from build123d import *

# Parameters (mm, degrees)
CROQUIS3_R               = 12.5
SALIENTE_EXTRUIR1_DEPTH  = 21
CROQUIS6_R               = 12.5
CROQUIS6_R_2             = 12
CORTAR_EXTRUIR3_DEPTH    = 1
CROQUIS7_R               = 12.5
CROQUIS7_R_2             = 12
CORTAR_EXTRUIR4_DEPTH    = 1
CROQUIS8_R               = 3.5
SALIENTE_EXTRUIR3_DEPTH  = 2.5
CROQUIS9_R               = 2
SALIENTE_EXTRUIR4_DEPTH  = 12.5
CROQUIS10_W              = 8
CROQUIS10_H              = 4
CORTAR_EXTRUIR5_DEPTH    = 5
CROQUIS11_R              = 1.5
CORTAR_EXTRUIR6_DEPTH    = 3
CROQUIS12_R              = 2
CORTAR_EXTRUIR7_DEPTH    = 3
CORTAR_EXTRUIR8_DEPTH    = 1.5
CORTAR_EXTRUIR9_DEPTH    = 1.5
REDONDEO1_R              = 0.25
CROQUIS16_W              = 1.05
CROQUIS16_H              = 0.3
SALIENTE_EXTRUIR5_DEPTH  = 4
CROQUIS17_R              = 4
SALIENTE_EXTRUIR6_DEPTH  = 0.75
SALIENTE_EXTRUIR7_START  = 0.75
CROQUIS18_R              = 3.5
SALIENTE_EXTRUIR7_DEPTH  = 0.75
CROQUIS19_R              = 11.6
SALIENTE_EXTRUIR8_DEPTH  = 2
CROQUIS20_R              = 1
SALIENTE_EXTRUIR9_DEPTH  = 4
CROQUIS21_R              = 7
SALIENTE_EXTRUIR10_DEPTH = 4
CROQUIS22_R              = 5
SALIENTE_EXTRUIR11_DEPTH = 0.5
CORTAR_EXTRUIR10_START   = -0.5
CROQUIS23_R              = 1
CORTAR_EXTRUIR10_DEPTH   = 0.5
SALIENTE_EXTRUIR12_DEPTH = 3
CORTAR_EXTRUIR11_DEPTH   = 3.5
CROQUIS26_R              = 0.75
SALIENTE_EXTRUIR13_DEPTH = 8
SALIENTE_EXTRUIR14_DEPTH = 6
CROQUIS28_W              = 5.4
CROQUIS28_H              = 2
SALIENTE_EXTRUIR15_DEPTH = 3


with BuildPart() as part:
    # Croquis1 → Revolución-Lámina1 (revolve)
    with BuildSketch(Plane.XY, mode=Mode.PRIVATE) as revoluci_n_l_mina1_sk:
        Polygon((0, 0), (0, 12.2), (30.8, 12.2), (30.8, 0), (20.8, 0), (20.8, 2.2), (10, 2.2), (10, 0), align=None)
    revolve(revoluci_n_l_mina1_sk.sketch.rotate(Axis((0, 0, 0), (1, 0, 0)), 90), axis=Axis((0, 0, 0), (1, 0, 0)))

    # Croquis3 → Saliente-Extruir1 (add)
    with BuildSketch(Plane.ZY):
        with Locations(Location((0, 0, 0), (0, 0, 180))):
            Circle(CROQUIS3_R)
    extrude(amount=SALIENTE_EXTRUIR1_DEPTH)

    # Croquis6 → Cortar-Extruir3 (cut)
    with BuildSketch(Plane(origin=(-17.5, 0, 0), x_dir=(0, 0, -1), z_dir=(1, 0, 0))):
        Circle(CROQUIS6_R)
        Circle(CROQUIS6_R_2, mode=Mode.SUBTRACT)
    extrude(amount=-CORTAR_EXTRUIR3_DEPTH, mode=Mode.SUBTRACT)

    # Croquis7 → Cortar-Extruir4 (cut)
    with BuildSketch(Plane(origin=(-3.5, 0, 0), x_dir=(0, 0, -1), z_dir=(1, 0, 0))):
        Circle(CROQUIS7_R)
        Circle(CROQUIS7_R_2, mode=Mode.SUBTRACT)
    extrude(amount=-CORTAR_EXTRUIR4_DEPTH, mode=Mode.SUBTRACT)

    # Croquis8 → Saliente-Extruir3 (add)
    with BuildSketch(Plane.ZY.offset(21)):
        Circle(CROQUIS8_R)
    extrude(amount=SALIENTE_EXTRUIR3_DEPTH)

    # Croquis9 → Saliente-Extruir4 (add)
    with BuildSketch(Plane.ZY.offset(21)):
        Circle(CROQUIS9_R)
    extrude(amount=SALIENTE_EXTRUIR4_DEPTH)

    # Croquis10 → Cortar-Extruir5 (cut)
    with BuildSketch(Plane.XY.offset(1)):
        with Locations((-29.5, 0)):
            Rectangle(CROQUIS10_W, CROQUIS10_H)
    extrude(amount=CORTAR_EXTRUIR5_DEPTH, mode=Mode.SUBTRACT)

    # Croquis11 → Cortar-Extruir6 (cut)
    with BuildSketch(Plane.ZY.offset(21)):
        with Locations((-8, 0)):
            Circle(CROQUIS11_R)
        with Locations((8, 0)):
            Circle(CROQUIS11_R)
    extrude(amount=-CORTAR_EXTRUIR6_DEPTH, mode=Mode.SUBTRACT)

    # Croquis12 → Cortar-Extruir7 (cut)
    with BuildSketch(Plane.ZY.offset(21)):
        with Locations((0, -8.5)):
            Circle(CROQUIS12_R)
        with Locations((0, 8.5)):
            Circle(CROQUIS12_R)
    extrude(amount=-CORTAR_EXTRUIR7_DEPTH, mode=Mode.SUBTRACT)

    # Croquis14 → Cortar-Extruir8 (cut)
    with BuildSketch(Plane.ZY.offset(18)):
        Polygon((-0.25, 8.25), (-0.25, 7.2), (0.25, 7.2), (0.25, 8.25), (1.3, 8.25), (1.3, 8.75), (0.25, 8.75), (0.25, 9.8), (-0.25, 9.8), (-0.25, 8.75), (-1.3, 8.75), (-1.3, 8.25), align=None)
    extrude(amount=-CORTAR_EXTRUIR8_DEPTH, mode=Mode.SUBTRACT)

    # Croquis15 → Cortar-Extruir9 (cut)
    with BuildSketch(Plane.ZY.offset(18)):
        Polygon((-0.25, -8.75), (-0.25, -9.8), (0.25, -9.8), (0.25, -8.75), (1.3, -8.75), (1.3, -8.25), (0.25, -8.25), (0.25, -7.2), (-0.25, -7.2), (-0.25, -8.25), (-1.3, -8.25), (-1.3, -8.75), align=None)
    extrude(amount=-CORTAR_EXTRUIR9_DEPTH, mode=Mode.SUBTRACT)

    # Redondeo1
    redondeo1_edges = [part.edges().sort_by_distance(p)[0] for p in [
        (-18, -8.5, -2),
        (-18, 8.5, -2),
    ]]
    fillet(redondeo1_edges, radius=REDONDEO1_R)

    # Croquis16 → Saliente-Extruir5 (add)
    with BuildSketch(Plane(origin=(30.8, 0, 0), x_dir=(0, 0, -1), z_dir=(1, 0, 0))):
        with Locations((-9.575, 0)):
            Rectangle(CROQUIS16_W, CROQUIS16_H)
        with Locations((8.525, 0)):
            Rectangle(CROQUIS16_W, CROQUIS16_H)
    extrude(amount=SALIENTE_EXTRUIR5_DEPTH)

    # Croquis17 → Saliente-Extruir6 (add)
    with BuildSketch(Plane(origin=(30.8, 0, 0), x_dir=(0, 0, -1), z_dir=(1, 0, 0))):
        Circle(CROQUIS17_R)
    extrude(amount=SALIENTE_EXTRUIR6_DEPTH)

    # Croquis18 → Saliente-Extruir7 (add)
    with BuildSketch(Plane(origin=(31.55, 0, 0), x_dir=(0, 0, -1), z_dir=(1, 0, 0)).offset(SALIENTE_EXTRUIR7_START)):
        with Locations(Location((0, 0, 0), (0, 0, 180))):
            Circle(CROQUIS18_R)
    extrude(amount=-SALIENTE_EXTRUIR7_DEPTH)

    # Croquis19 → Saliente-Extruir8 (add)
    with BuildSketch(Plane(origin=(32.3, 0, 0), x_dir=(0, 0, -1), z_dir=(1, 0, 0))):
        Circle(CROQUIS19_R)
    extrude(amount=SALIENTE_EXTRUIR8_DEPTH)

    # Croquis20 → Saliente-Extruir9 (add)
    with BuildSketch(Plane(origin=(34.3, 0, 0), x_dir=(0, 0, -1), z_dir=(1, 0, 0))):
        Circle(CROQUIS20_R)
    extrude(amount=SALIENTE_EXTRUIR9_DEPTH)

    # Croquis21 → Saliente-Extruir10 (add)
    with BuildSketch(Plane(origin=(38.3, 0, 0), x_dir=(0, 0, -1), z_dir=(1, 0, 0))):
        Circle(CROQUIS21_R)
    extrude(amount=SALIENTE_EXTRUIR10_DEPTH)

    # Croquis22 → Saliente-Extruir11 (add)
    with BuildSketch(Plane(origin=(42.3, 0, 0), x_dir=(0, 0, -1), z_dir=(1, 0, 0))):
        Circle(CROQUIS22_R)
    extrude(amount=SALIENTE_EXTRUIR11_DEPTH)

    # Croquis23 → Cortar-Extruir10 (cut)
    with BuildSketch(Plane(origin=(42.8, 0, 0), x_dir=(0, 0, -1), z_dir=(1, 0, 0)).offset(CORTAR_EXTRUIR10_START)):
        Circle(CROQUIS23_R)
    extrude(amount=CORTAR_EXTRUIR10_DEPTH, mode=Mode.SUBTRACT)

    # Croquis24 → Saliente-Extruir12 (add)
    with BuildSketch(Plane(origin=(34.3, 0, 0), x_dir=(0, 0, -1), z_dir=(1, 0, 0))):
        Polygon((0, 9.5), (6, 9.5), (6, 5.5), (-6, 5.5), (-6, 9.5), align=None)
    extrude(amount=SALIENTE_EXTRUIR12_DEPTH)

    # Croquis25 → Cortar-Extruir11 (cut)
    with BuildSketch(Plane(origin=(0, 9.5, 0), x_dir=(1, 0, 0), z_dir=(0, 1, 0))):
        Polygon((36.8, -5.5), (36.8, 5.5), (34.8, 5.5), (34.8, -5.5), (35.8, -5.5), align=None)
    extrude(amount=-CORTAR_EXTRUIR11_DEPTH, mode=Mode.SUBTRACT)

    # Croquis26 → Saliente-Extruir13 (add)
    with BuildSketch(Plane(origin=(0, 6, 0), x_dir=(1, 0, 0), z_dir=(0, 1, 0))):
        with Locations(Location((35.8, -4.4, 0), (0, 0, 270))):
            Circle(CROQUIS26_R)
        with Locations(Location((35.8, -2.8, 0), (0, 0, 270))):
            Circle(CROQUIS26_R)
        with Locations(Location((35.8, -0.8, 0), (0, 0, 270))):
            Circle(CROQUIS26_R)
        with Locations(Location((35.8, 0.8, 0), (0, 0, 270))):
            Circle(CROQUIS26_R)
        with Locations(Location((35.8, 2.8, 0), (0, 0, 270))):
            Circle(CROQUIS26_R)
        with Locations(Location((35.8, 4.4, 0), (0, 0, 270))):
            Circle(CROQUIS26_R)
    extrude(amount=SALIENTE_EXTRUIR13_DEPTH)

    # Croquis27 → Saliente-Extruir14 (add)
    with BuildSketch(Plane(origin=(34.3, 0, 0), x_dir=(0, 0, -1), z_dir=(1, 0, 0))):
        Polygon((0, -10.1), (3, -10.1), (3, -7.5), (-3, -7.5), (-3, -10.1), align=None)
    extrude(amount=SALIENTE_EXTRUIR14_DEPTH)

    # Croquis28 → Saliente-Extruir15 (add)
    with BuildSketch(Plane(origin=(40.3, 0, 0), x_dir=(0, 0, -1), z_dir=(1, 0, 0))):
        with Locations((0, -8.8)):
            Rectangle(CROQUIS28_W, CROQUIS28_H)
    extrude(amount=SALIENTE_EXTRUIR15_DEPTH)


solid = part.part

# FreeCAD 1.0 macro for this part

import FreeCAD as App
import Part
import Sketcher


def edges_at(feature, points):
    """Names of the edges that pass closest to the given points."""
    edges = feature.Shape.Edges
    near = lambda p: min(range(len(edges)), key=lambda i: edges[i].distToShape(Part.Vertex(*p))[0])
    return sorted({f"Edge{near(p) + 1}" for p in points})

doc = App.newDocument("Part")
params = doc.addObject("Spreadsheet::Sheet", "Params")
for row, (alias, value) in enumerate([
    ("sketch1_width", "10 mm"),
    ("sketch1_width2", "10.8 mm"),
    ("sketch1_height", "12.2 mm"),
    ("sketch1_height2", "2.2 mm"),
    ("revolution_angle", "360 deg"),
    ("sketch2_diameter", "25 mm"),
    ("pad1_length", "21 mm"),
    ("sketch3_diameter", "25 mm"),
    ("sketch3_diameter2", "24 mm"),
    ("pocket1_length", "1 mm"),
    ("sketch4_diameter", "25 mm"),
    ("sketch4_diameter2", "24 mm"),
    ("pocket2_length", "1 mm"),
    ("sketch5_diameter", "7 mm"),
    ("pad2_length", "2.5 mm"),
    ("sketch6_diameter", "4 mm"),
    ("pad3_length", "12.5 mm"),
    ("sketch7_width", "8 mm"),
    ("sketch7_height", "4 mm"),
    ("pocket3_length", "5 mm"),
    ("sketch8_diameter", "3 mm"),
    ("pocket4_length", "3 mm"),
    ("sketch9_diameter", "4 mm"),
    ("pocket5_length", "3 mm"),
    ("sketch10_width", "0.5 mm"),
    ("sketch10_width2", "1.05 mm"),
    ("pocket6_length", "1.5 mm"),
    ("sketch11_width", "0.5 mm"),
    ("sketch11_width2", "1.05 mm"),
    ("pocket7_length", "1.5 mm"),
    ("fillet_radius", "0.25 mm"),
    ("sketch12_width", "0.3 mm"),
    ("sketch12_height", "1.05 mm"),
    ("pad4_length", "4 mm"),
    ("sketch13_diameter", "8 mm"),
    ("pad5_length", "0.75 mm"),
    ("sketch14_diameter", "7 mm"),
    ("pad6_length", "0.75 mm"),
    ("sketch15_diameter", "23.2 mm"),
    ("pad7_length", "2 mm"),
    ("sketch16_diameter", "2 mm"),
    ("pad8_length", "4 mm"),
    ("sketch17_diameter", "14 mm"),
    ("pad9_length", "4 mm"),
    ("sketch18_diameter", "10 mm"),
    ("pad10_length", "0.5 mm"),
    ("sketch19_diameter", "2 mm"),
    ("pocket8_length", "0.5 mm"),
    ("sketch20_width", "4 mm"),
    ("sketch20_height", "12 mm"),
    ("pad11_length", "3 mm"),
    ("sketch21_width", "2 mm"),
    ("sketch21_height", "11 mm"),
    ("pocket9_length", "3.5 mm"),
    ("sketch22_diameter", "1.5 mm"),
    ("pad12_length", "8 mm"),
    ("sketch23_height", "6 mm"),
    ("sketch23_width", "2.6 mm"),
    ("pad13_length", "6 mm"),
    ("sketch24_width", "2 mm"),
    ("sketch24_height", "5.4 mm"),
    ("pad14_length", "3 mm"),
], start=1):
    params.set(f"A{row}", alias)
    params.set(f"B{row}", "=" + value)
    params.setAlias(f"B{row}", alias)

body = doc.addObject("PartDesign::Body", "Body")

sketch1 = body.newObject("Sketcher::SketchObject", "Sketch")
sketch1.AttachmentSupport = (doc.getObject("XY_Plane"), [""])
sketch1.MapMode = "FlatFace"
sketch1.addGeometry([
    Part.LineSegment(App.Vector(0, 12.2, 0), App.Vector(0, 0, 0)),
    Part.LineSegment(App.Vector(0, 0, 0), App.Vector(10, 0, 0)),
    Part.LineSegment(App.Vector(10, 0, 0), App.Vector(10, 2.2, 0)),
    Part.LineSegment(App.Vector(10, 2.2, 0), App.Vector(20.8, 2.2, 0)),
    Part.LineSegment(App.Vector(20.8, 2.2, 0), App.Vector(20.8, 0, 0)),
    Part.LineSegment(App.Vector(20.8, 0, 0), App.Vector(30.8, 0, 0)),
    Part.LineSegment(App.Vector(30.8, 0, 0), App.Vector(30.8, 12.2, 0)),
    Part.LineSegment(App.Vector(30.8, 12.2, 0), App.Vector(0, 12.2, 0)),
], False)
sketch1.addConstraint([
    Sketcher.Constraint("Coincident", 0, 2, 1, 1),
    Sketcher.Constraint("Coincident", 1, 2, 2, 1),
    Sketcher.Constraint("Coincident", 2, 2, 3, 1),
    Sketcher.Constraint("Coincident", 3, 2, 4, 1),
    Sketcher.Constraint("Coincident", 4, 2, 5, 1),
    Sketcher.Constraint("Coincident", 5, 2, 6, 1),
    Sketcher.Constraint("Coincident", 6, 2, 7, 1),
    Sketcher.Constraint("Coincident", 7, 2, 0, 1),
    Sketcher.Constraint("Vertical", 0),
    Sketcher.Constraint("Horizontal", 1),
    Sketcher.Constraint("Vertical", 2),
    Sketcher.Constraint("Horizontal", 3),
    Sketcher.Constraint("Vertical", 4),
    Sketcher.Constraint("Horizontal", 5),
    Sketcher.Constraint("Vertical", 6),
    Sketcher.Constraint("Horizontal", 7),
    Sketcher.Constraint("Coincident", 0, 2, -1, 1),
    Sketcher.Constraint("PointOnObject", 4, 2, -1),
    Sketcher.Constraint("Equal", 1, 5),
    Sketcher.Constraint("DistanceX", 1, 1, 1, 2, 10.0),
    Sketcher.Constraint("DistanceX", 3, 1, 3, 2, 10.8),
    Sketcher.Constraint("DistanceY", 0, 2, 0, 1, 12.2),
    Sketcher.Constraint("DistanceY", 2, 1, 2, 2, 2.2),
])
sketch1.setExpression("Constraints[19]", "Params.sketch1_width")
sketch1.setExpression("Constraints[20]", "Params.sketch1_width2")
sketch1.setExpression("Constraints[21]", "Params.sketch1_height")
sketch1.setExpression("Constraints[22]", "Params.sketch1_height2")
revolution = body.newObject("PartDesign::Revolution", "Revolution")
revolution.Profile = sketch1
revolution.ReferenceAxis = (sketch1, ["H_Axis"])
revolution.setExpression("Angle", "Params.revolution_angle")

sketch2 = body.newObject("Sketcher::SketchObject", "Sketch001")
sketch2.AttachmentSupport = (doc.getObject("YZ_Plane"), [""])
sketch2.MapMode = "FlatFace"
sketch2.addGeometry(Part.Circle(App.Vector(0, 0, 0), App.Vector(0, 0, 1), 12.5), False)
sketch2.addConstraint([
    Sketcher.Constraint("Coincident", 0, 3, -1, 1),
    Sketcher.Constraint("Diameter", 0, 25.0),
])
sketch2.setExpression("Constraints[1]", "Params.sketch2_diameter")
pad1 = body.newObject("PartDesign::Pad", "Pad")
pad1.Profile = sketch2
pad1.setExpression("Length", "Params.pad1_length")
pad1.Reversed = True

sketch3 = body.newObject("Sketcher::SketchObject", "Sketch002")
sketch3.AttachmentSupport = (doc.getObject("YZ_Plane"), [""])
sketch3.MapMode = "FlatFace"
sketch3.AttachmentOffset = App.Placement(App.Vector(0, 0, -17.5), App.Rotation())
sketch3.addGeometry([
    Part.Circle(App.Vector(0, 0, 0), App.Vector(0, 0, 1), 12.5),
    Part.Circle(App.Vector(0, 0, 0), App.Vector(0, 0, 1), 12),
], False)
sketch3.addConstraint([
    Sketcher.Constraint("Coincident", 0, 3, -1, 1),
    Sketcher.Constraint("Coincident", 1, 3, -1, 1),
    Sketcher.Constraint("Diameter", 0, 25.0),
    Sketcher.Constraint("Diameter", 1, 24.0),
])
sketch3.setExpression("Constraints[2]", "Params.sketch3_diameter")
sketch3.setExpression("Constraints[3]", "Params.sketch3_diameter2")
pocket1 = body.newObject("PartDesign::Pocket", "Pocket")
pocket1.Profile = sketch3
pocket1.setExpression("Length", "Params.pocket1_length")

sketch4 = body.newObject("Sketcher::SketchObject", "Sketch003")
sketch4.AttachmentSupport = (doc.getObject("YZ_Plane"), [""])
sketch4.MapMode = "FlatFace"
sketch4.AttachmentOffset = App.Placement(App.Vector(0, 0, -3.5), App.Rotation())
sketch4.addGeometry([
    Part.Circle(App.Vector(0, 0, 0), App.Vector(0, 0, 1), 12.5),
    Part.Circle(App.Vector(0, 0, 0), App.Vector(0, 0, 1), 12),
], False)
sketch4.addConstraint([
    Sketcher.Constraint("Coincident", 0, 3, -1, 1),
    Sketcher.Constraint("Coincident", 1, 3, -1, 1),
    Sketcher.Constraint("Diameter", 0, 25.0),
    Sketcher.Constraint("Diameter", 1, 24.0),
])
sketch4.setExpression("Constraints[2]", "Params.sketch4_diameter")
sketch4.setExpression("Constraints[3]", "Params.sketch4_diameter2")
pocket2 = body.newObject("PartDesign::Pocket", "Pocket001")
pocket2.Profile = sketch4
pocket2.setExpression("Length", "Params.pocket2_length")

sketch5 = body.newObject("Sketcher::SketchObject", "Sketch004")
sketch5.AttachmentSupport = (doc.getObject("YZ_Plane"), [""])
sketch5.MapMode = "FlatFace"
sketch5.AttachmentOffset = App.Placement(App.Vector(0, 0, -21), App.Rotation())
sketch5.addGeometry(Part.Circle(App.Vector(0, 0, 0), App.Vector(0, 0, 1), 3.5), False)
sketch5.addConstraint([
    Sketcher.Constraint("Coincident", 0, 3, -1, 1),
    Sketcher.Constraint("Diameter", 0, 7.0),
])
sketch5.setExpression("Constraints[1]", "Params.sketch5_diameter")
pad2 = body.newObject("PartDesign::Pad", "Pad001")
pad2.Profile = sketch5
pad2.setExpression("Length", "Params.pad2_length")
pad2.Reversed = True

sketch6 = body.newObject("Sketcher::SketchObject", "Sketch005")
sketch6.AttachmentSupport = (doc.getObject("YZ_Plane"), [""])
sketch6.MapMode = "FlatFace"
sketch6.AttachmentOffset = App.Placement(App.Vector(0, 0, -21), App.Rotation())
sketch6.addGeometry(Part.Circle(App.Vector(0, 0, 0), App.Vector(0, 0, 1), 2), False)
sketch6.addConstraint([
    Sketcher.Constraint("Coincident", 0, 3, -1, 1),
    Sketcher.Constraint("Diameter", 0, 4.0),
])
sketch6.setExpression("Constraints[1]", "Params.sketch6_diameter")
pad3 = body.newObject("PartDesign::Pad", "Pad002")
pad3.Profile = sketch6
pad3.setExpression("Length", "Params.pad3_length")
pad3.Reversed = True

sketch7 = body.newObject("Sketcher::SketchObject", "Sketch006")
sketch7.AttachmentSupport = (doc.getObject("XY_Plane"), [""])
sketch7.MapMode = "FlatFace"
sketch7.AttachmentOffset = App.Placement(App.Vector(0, 0, 1), App.Rotation())
sketch7.addGeometry([
    Part.LineSegment(App.Vector(-33.5, 2, 0), App.Vector(-33.5, -2, 0)),
    Part.LineSegment(App.Vector(-33.5, -2, 0), App.Vector(-25.5, -2, 0)),
    Part.LineSegment(App.Vector(-25.5, -2, 0), App.Vector(-25.5, 2, 0)),
    Part.LineSegment(App.Vector(-25.5, 2, 0), App.Vector(-33.5, 2, 0)),
], False)
sketch7.addConstraint([
    Sketcher.Constraint("Coincident", 0, 2, 1, 1),
    Sketcher.Constraint("Coincident", 1, 2, 2, 1),
    Sketcher.Constraint("Coincident", 2, 2, 3, 1),
    Sketcher.Constraint("Coincident", 3, 2, 0, 1),
    Sketcher.Constraint("Vertical", 0),
    Sketcher.Constraint("Horizontal", 1),
    Sketcher.Constraint("Vertical", 2),
    Sketcher.Constraint("Horizontal", 3),
    Sketcher.Constraint("DistanceX", 1, 1, 1, 2, 8.0),
    Sketcher.Constraint("DistanceY", 0, 2, 0, 1, 4.0),
    Sketcher.Constraint("DistanceY", 0, 2, -1, 1, 2.0),
    Sketcher.Constraint("DistanceX", 0, 2, -1, 1, 33.5),
])
sketch7.setExpression("Constraints[8]", "Params.sketch7_width")
sketch7.setExpression("Constraints[9]", "Params.sketch7_height")
pocket3 = body.newObject("PartDesign::Pocket", "Pocket002")
pocket3.Profile = sketch7
pocket3.setExpression("Length", "Params.pocket3_length")
pocket3.Reversed = True

sketch8 = body.newObject("Sketcher::SketchObject", "Sketch007")
sketch8.AttachmentSupport = (doc.getObject("YZ_Plane"), [""])
sketch8.MapMode = "FlatFace"
sketch8.AttachmentOffset = App.Placement(App.Vector(0, 0, -21), App.Rotation())
sketch8.addGeometry([
    Part.Circle(App.Vector(0, -8, 0), App.Vector(0, 0, 1), 1.5),
    Part.Circle(App.Vector(0, 8, 0), App.Vector(0, 0, 1), 1.5),
], False)
sketch8.addConstraint([
    Sketcher.Constraint("Equal", 0, 1),
    Sketcher.Constraint("Symmetric", 0, 3, 1, 3, -1, 1),
    Sketcher.Constraint("PointOnObject", 0, 3, -2),
    Sketcher.Constraint("Diameter", 0, 3.0),
    Sketcher.Constraint("DistanceY", 0, 3, -1, 1, 8.0),
])
sketch8.setExpression("Constraints[3]", "Params.sketch8_diameter")
pocket4 = body.newObject("PartDesign::Pocket", "Pocket003")
pocket4.Profile = sketch8
pocket4.setExpression("Length", "Params.pocket4_length")
pocket4.Reversed = True

sketch9 = body.newObject("Sketcher::SketchObject", "Sketch008")
sketch9.AttachmentSupport = (doc.getObject("YZ_Plane"), [""])
sketch9.MapMode = "FlatFace"
sketch9.AttachmentOffset = App.Placement(App.Vector(0, 0, -21), App.Rotation())
sketch9.addGeometry([
    Part.Circle(App.Vector(-8.5, 0, 0), App.Vector(0, 0, 1), 2),
    Part.Circle(App.Vector(8.5, 0, 0), App.Vector(0, 0, 1), 2),
], False)
sketch9.addConstraint([
    Sketcher.Constraint("Equal", 0, 1),
    Sketcher.Constraint("Symmetric", 0, 3, 1, 3, -1, 1),
    Sketcher.Constraint("PointOnObject", 0, 3, -1),
    Sketcher.Constraint("Diameter", 0, 4.0),
    Sketcher.Constraint("DistanceX", 0, 3, 1, 3, 17.0),
])
sketch9.setExpression("Constraints[3]", "Params.sketch9_diameter")
pocket5 = body.newObject("PartDesign::Pocket", "Pocket004")
pocket5.Profile = sketch9
pocket5.setExpression("Length", "Params.pocket5_length")
pocket5.Reversed = True

sketch10 = body.newObject("Sketcher::SketchObject", "Sketch009")
sketch10.AttachmentSupport = (doc.getObject("YZ_Plane"), [""])
sketch10.MapMode = "FlatFace"
sketch10.AttachmentOffset = App.Placement(App.Vector(0, 0, -18), App.Rotation())
sketch10.addGeometry([
    Part.LineSegment(App.Vector(8.25, -0.25, 0), App.Vector(7.2, -0.25, 0)),
    Part.LineSegment(App.Vector(7.2, -0.25, 0), App.Vector(7.2, 0.25, 0)),
    Part.LineSegment(App.Vector(7.2, 0.25, 0), App.Vector(8.25, 0.25, 0)),
    Part.LineSegment(App.Vector(8.25, 0.25, 0), App.Vector(8.25, 1.3, 0)),
    Part.LineSegment(App.Vector(8.25, 1.3, 0), App.Vector(8.75, 1.3, 0)),
    Part.LineSegment(App.Vector(8.75, 1.3, 0), App.Vector(8.75, 0.25, 0)),
    Part.LineSegment(App.Vector(8.75, 0.25, 0), App.Vector(9.8, 0.25, 0)),
    Part.LineSegment(App.Vector(9.8, 0.25, 0), App.Vector(9.8, -0.25, 0)),
    Part.LineSegment(App.Vector(9.8, -0.25, 0), App.Vector(8.75, -0.25, 0)),
    Part.LineSegment(App.Vector(8.75, -0.25, 0), App.Vector(8.75, -1.3, 0)),
    Part.LineSegment(App.Vector(8.75, -1.3, 0), App.Vector(8.25, -1.3, 0)),
    Part.LineSegment(App.Vector(8.25, -1.3, 0), App.Vector(8.25, -0.25, 0)),
], False)
sketch10.addConstraint([
    Sketcher.Constraint("Coincident", 0, 2, 1, 1),
    Sketcher.Constraint("Coincident", 1, 2, 2, 1),
    Sketcher.Constraint("Coincident", 2, 2, 3, 1),
    Sketcher.Constraint("Coincident", 3, 2, 4, 1),
    Sketcher.Constraint("Coincident", 4, 2, 5, 1),
    Sketcher.Constraint("Coincident", 5, 2, 6, 1),
    Sketcher.Constraint("Coincident", 6, 2, 7, 1),
    Sketcher.Constraint("Coincident", 7, 2, 8, 1),
    Sketcher.Constraint("Coincident", 8, 2, 9, 1),
    Sketcher.Constraint("Coincident", 9, 2, 10, 1),
    Sketcher.Constraint("Coincident", 10, 2, 11, 1),
    Sketcher.Constraint("Coincident", 11, 2, 0, 1),
    Sketcher.Constraint("Horizontal", 0),
    Sketcher.Constraint("Vertical", 1),
    Sketcher.Constraint("Horizontal", 2),
    Sketcher.Constraint("Vertical", 3),
    Sketcher.Constraint("Horizontal", 4),
    Sketcher.Constraint("Vertical", 5),
    Sketcher.Constraint("Horizontal", 6),
    Sketcher.Constraint("Vertical", 7),
    Sketcher.Constraint("Horizontal", 8),
    Sketcher.Constraint("Vertical", 9),
    Sketcher.Constraint("Horizontal", 10),
    Sketcher.Constraint("Vertical", 11),
    Sketcher.Constraint("Symmetric", 5, 2, 8, 2, -1),
    Sketcher.Constraint("Symmetric", 3, 2, 10, 2, -1),
    Sketcher.Constraint("Horizontal", 2, 2, 5, 2),
    Sketcher.Constraint("Horizontal", 0, 2, 7, 2),
    Sketcher.Constraint("Equal", 2, 6),
    Sketcher.Constraint("Equal", 10, 1),
    Sketcher.Constraint("Equal", 8, 3),
    Sketcher.Constraint("DistanceX", 4, 1, 4, 2, 0.5),
    Sketcher.Constraint("DistanceX", 0, 2, 0, 1, 1.05),
    Sketcher.Constraint("DistanceX", -1, 1, 0, 2, 7.2),
])
sketch10.setExpression("Constraints[31]", "Params.sketch10_width")
sketch10.setExpression("Constraints[32]", "Params.sketch10_width2")
pocket6 = body.newObject("PartDesign::Pocket", "Pocket005")
pocket6.Profile = sketch10
pocket6.setExpression("Length", "Params.pocket6_length")
pocket6.Reversed = True

sketch11 = body.newObject("Sketcher::SketchObject", "Sketch010")
sketch11.AttachmentSupport = (doc.getObject("YZ_Plane"), [""])
sketch11.MapMode = "FlatFace"
sketch11.AttachmentOffset = App.Placement(App.Vector(0, 0, -18), App.Rotation())
sketch11.addGeometry([
    Part.LineSegment(App.Vector(-8.75, -0.25, 0), App.Vector(-9.8, -0.25, 0)),
    Part.LineSegment(App.Vector(-9.8, -0.25, 0), App.Vector(-9.8, 0.25, 0)),
    Part.LineSegment(App.Vector(-9.8, 0.25, 0), App.Vector(-8.75, 0.25, 0)),
    Part.LineSegment(App.Vector(-8.75, 0.25, 0), App.Vector(-8.75, 1.3, 0)),
    Part.LineSegment(App.Vector(-8.75, 1.3, 0), App.Vector(-8.25, 1.3, 0)),
    Part.LineSegment(App.Vector(-8.25, 1.3, 0), App.Vector(-8.25, 0.25, 0)),
    Part.LineSegment(App.Vector(-8.25, 0.25, 0), App.Vector(-7.2, 0.25, 0)),
    Part.LineSegment(App.Vector(-7.2, 0.25, 0), App.Vector(-7.2, -0.25, 0)),
    Part.LineSegment(App.Vector(-7.2, -0.25, 0), App.Vector(-8.25, -0.25, 0)),
    Part.LineSegment(App.Vector(-8.25, -0.25, 0), App.Vector(-8.25, -1.3, 0)),
    Part.LineSegment(App.Vector(-8.25, -1.3, 0), App.Vector(-8.75, -1.3, 0)),
    Part.LineSegment(App.Vector(-8.75, -1.3, 0), App.Vector(-8.75, -0.25, 0)),
], False)
sketch11.addConstraint([
    Sketcher.Constraint("Coincident", 0, 2, 1, 1),
    Sketcher.Constraint("Coincident", 1, 2, 2, 1),
    Sketcher.Constraint("Coincident", 2, 2, 3, 1),
    Sketcher.Constraint("Coincident", 3, 2, 4, 1),
    Sketcher.Constraint("Coincident", 4, 2, 5, 1),
    Sketcher.Constraint("Coincident", 5, 2, 6, 1),
    Sketcher.Constraint("Coincident", 6, 2, 7, 1),
    Sketcher.Constraint("Coincident", 7, 2, 8, 1),
    Sketcher.Constraint("Coincident", 8, 2, 9, 1),
    Sketcher.Constraint("Coincident", 9, 2, 10, 1),
    Sketcher.Constraint("Coincident", 10, 2, 11, 1),
    Sketcher.Constraint("Coincident", 11, 2, 0, 1),
    Sketcher.Constraint("Horizontal", 0),
    Sketcher.Constraint("Vertical", 1),
    Sketcher.Constraint("Horizontal", 2),
    Sketcher.Constraint("Vertical", 3),
    Sketcher.Constraint("Horizontal", 4),
    Sketcher.Constraint("Vertical", 5),
    Sketcher.Constraint("Horizontal", 6),
    Sketcher.Constraint("Vertical", 7),
    Sketcher.Constraint("Horizontal", 8),
    Sketcher.Constraint("Vertical", 9),
    Sketcher.Constraint("Horizontal", 10),
    Sketcher.Constraint("Vertical", 11),
    Sketcher.Constraint("Symmetric", 5, 2, 8, 2, -1),
    Sketcher.Constraint("Symmetric", 3, 2, 10, 2, -1),
    Sketcher.Constraint("Horizontal", 2, 2, 5, 2),
    Sketcher.Constraint("Horizontal", 0, 2, 7, 2),
    Sketcher.Constraint("Equal", 2, 6),
    Sketcher.Constraint("Equal", 10, 1),
    Sketcher.Constraint("Equal", 8, 3),
    Sketcher.Constraint("DistanceX", 4, 1, 4, 2, 0.5),
    Sketcher.Constraint("DistanceX", 0, 2, 0, 1, 1.05),
    Sketcher.Constraint("DistanceX", 0, 2, -1, 1, 9.8),
])
sketch11.setExpression("Constraints[31]", "Params.sketch11_width")
sketch11.setExpression("Constraints[32]", "Params.sketch11_width2")
pocket7 = body.newObject("PartDesign::Pocket", "Pocket006")
pocket7.Profile = sketch11
pocket7.setExpression("Length", "Params.pocket7_length")
pocket7.Reversed = True
doc.recompute()

fillet = body.newObject("PartDesign::Fillet", "Fillet")
fillet.Base = (pocket7, edges_at(pocket7, [(-18, -8.5, -2), (-18, 8.5, -2)]))
fillet.setExpression("Radius", "Params.fillet_radius")

sketch12 = body.newObject("Sketcher::SketchObject", "Sketch011")
sketch12.AttachmentSupport = (doc.getObject("YZ_Plane"), [""])
sketch12.MapMode = "FlatFace"
sketch12.AttachmentOffset = App.Placement(App.Vector(0, 0, 30.8), App.Rotation())
sketch12.addGeometry([
    Part.LineSegment(App.Vector(0.15, 10.1, 0), App.Vector(-0.15, 10.1, 0)),
    Part.LineSegment(App.Vector(-0.15, 10.1, 0), App.Vector(-0.15, 9.05, 0)),
    Part.LineSegment(App.Vector(-0.15, 9.05, 0), App.Vector(0.15, 9.05, 0)),
    Part.LineSegment(App.Vector(0.15, 9.05, 0), App.Vector(0.15, 10.1, 0)),
    Part.LineSegment(App.Vector(0.15, -8, 0), App.Vector(-0.15, -8, 0)),
    Part.LineSegment(App.Vector(-0.15, -8, 0), App.Vector(-0.15, -9.05, 0)),
    Part.LineSegment(App.Vector(-0.15, -9.05, 0), App.Vector(0.15, -9.05, 0)),
    Part.LineSegment(App.Vector(0.15, -9.05, 0), App.Vector(0.15, -8, 0)),
], False)
sketch12.addConstraint([
    Sketcher.Constraint("Coincident", 0, 2, 1, 1),
    Sketcher.Constraint("Coincident", 1, 2, 2, 1),
    Sketcher.Constraint("Coincident", 2, 2, 3, 1),
    Sketcher.Constraint("Coincident", 3, 2, 0, 1),
    Sketcher.Constraint("Coincident", 4, 2, 5, 1),
    Sketcher.Constraint("Coincident", 5, 2, 6, 1),
    Sketcher.Constraint("Coincident", 6, 2, 7, 1),
    Sketcher.Constraint("Coincident", 7, 2, 4, 1),
    Sketcher.Constraint("Horizontal", 0),
    Sketcher.Constraint("Vertical", 1),
    Sketcher.Constraint("Horizontal", 2),
    Sketcher.Constraint("Vertical", 3),
    Sketcher.Constraint("Horizontal", 4),
    Sketcher.Constraint("Vertical", 5),
    Sketcher.Constraint("Horizontal", 6),
    Sketcher.Constraint("Vertical", 7),
    Sketcher.Constraint("Symmetric", 2, 2, 5, 2, -1, 1),
    Sketcher.Constraint("Vertical", 1, 2, 4, 2),
    Sketcher.Constraint("Vertical", 3, 2, 6, 2),
    Sketcher.Constraint("Equal", 3, 5),
    Sketcher.Constraint("DistanceX", 0, 2, 0, 1, 0.3),
    Sketcher.Constraint("DistanceY", 4, 2, -1, 1, 8.0),
    Sketcher.Constraint("DistanceY", 1, 2, 1, 1, 1.05),
])
sketch12.setExpression("Constraints[20]", "Params.sketch12_width")
sketch12.setExpression("Constraints[22]", "Params.sketch12_height")
pad4 = body.newObject("PartDesign::Pad", "Pad003")
pad4.Profile = sketch12
pad4.setExpression("Length", "Params.pad4_length")

sketch13 = body.newObject("Sketcher::SketchObject", "Sketch012")
sketch13.AttachmentSupport = (doc.getObject("YZ_Plane"), [""])
sketch13.MapMode = "FlatFace"
sketch13.AttachmentOffset = App.Placement(App.Vector(0, 0, 30.8), App.Rotation())
sketch13.addGeometry(Part.Circle(App.Vector(0, 0, 0), App.Vector(0, 0, 1), 4), False)
sketch13.addConstraint([
    Sketcher.Constraint("Coincident", 0, 3, -1, 1),
    Sketcher.Constraint("Diameter", 0, 8.0),
])
sketch13.setExpression("Constraints[1]", "Params.sketch13_diameter")
pad5 = body.newObject("PartDesign::Pad", "Pad004")
pad5.Profile = sketch13
pad5.setExpression("Length", "Params.pad5_length")

sketch14 = body.newObject("Sketcher::SketchObject", "Sketch013")
sketch14.AttachmentSupport = (doc.getObject("YZ_Plane"), [""])
sketch14.MapMode = "FlatFace"
sketch14.AttachmentOffset = App.Placement(App.Vector(0, 0, 32.3), App.Rotation())
sketch14.addGeometry(Part.Circle(App.Vector(0, 0, 0), App.Vector(0, 0, 1), 3.5), False)
sketch14.addConstraint([
    Sketcher.Constraint("Coincident", 0, 3, -1, 1),
    Sketcher.Constraint("Diameter", 0, 7.0),
])
sketch14.setExpression("Constraints[1]", "Params.sketch14_diameter")
pad6 = body.newObject("PartDesign::Pad", "Pad005")
pad6.Profile = sketch14
pad6.setExpression("Length", "Params.pad6_length")
pad6.Reversed = True

sketch15 = body.newObject("Sketcher::SketchObject", "Sketch014")
sketch15.AttachmentSupport = (doc.getObject("YZ_Plane"), [""])
sketch15.MapMode = "FlatFace"
sketch15.AttachmentOffset = App.Placement(App.Vector(0, 0, 32.3), App.Rotation())
sketch15.addGeometry(Part.Circle(App.Vector(0, 0, 0), App.Vector(0, 0, 1), 11.6), False)
sketch15.addConstraint([
    Sketcher.Constraint("Coincident", 0, 3, -1, 1),
    Sketcher.Constraint("Diameter", 0, 23.2),
])
sketch15.setExpression("Constraints[1]", "Params.sketch15_diameter")
pad7 = body.newObject("PartDesign::Pad", "Pad006")
pad7.Profile = sketch15
pad7.setExpression("Length", "Params.pad7_length")

sketch16 = body.newObject("Sketcher::SketchObject", "Sketch015")
sketch16.AttachmentSupport = (doc.getObject("YZ_Plane"), [""])
sketch16.MapMode = "FlatFace"
sketch16.AttachmentOffset = App.Placement(App.Vector(0, 0, 34.3), App.Rotation())
sketch16.addGeometry(Part.Circle(App.Vector(0, 0, 0), App.Vector(0, 0, 1), 1), False)
sketch16.addConstraint([
    Sketcher.Constraint("Coincident", 0, 3, -1, 1),
    Sketcher.Constraint("Diameter", 0, 2.0),
])
sketch16.setExpression("Constraints[1]", "Params.sketch16_diameter")
pad8 = body.newObject("PartDesign::Pad", "Pad007")
pad8.Profile = sketch16
pad8.setExpression("Length", "Params.pad8_length")

sketch17 = body.newObject("Sketcher::SketchObject", "Sketch016")
sketch17.AttachmentSupport = (doc.getObject("YZ_Plane"), [""])
sketch17.MapMode = "FlatFace"
sketch17.AttachmentOffset = App.Placement(App.Vector(0, 0, 38.3), App.Rotation())
sketch17.addGeometry(Part.Circle(App.Vector(0, 0, 0), App.Vector(0, 0, 1), 7), False)
sketch17.addConstraint([
    Sketcher.Constraint("Coincident", 0, 3, -1, 1),
    Sketcher.Constraint("Diameter", 0, 14.0),
])
sketch17.setExpression("Constraints[1]", "Params.sketch17_diameter")
pad9 = body.newObject("PartDesign::Pad", "Pad008")
pad9.Profile = sketch17
pad9.setExpression("Length", "Params.pad9_length")

sketch18 = body.newObject("Sketcher::SketchObject", "Sketch017")
sketch18.AttachmentSupport = (doc.getObject("YZ_Plane"), [""])
sketch18.MapMode = "FlatFace"
sketch18.AttachmentOffset = App.Placement(App.Vector(0, 0, 42.3), App.Rotation())
sketch18.addGeometry(Part.Circle(App.Vector(0, 0, 0), App.Vector(0, 0, 1), 5), False)
sketch18.addConstraint([
    Sketcher.Constraint("Coincident", 0, 3, -1, 1),
    Sketcher.Constraint("Diameter", 0, 10.0),
])
sketch18.setExpression("Constraints[1]", "Params.sketch18_diameter")
pad10 = body.newObject("PartDesign::Pad", "Pad009")
pad10.Profile = sketch18
pad10.setExpression("Length", "Params.pad10_length")

sketch19 = body.newObject("Sketcher::SketchObject", "Sketch018")
sketch19.AttachmentSupport = (doc.getObject("YZ_Plane"), [""])
sketch19.MapMode = "FlatFace"
sketch19.AttachmentOffset = App.Placement(App.Vector(0, 0, 42.3), App.Rotation())
sketch19.addGeometry(Part.Circle(App.Vector(0, 0, 0), App.Vector(0, 0, 1), 1), False)
sketch19.addConstraint([
    Sketcher.Constraint("Coincident", 0, 3, -1, 1),
    Sketcher.Constraint("Diameter", 0, 2.0),
])
sketch19.setExpression("Constraints[1]", "Params.sketch19_diameter")
pocket8 = body.newObject("PartDesign::Pocket", "Pocket007")
pocket8.Profile = sketch19
pocket8.setExpression("Length", "Params.pocket8_length")
pocket8.Reversed = True

sketch20 = body.newObject("Sketcher::SketchObject", "Sketch019")
sketch20.AttachmentSupport = (doc.getObject("YZ_Plane"), [""])
sketch20.MapMode = "FlatFace"
sketch20.AttachmentOffset = App.Placement(App.Vector(0, 0, 34.3), App.Rotation())
sketch20.addGeometry([
    Part.LineSegment(App.Vector(9.5, -6, 0), App.Vector(9.5, 6, 0)),
    Part.LineSegment(App.Vector(9.5, 6, 0), App.Vector(5.5, 6, 0)),
    Part.LineSegment(App.Vector(5.5, 6, 0), App.Vector(5.5, -6, 0)),
    Part.LineSegment(App.Vector(5.5, -6, 0), App.Vector(9.5, -6, 0)),
], False)
sketch20.addConstraint([
    Sketcher.Constraint("Coincident", 0, 2, 1, 1),
    Sketcher.Constraint("Coincident", 1, 2, 2, 1),
    Sketcher.Constraint("Coincident", 2, 2, 3, 1),
    Sketcher.Constraint("Coincident", 3, 2, 0, 1),
    Sketcher.Constraint("Vertical", 0),
    Sketcher.Constraint("Horizontal", 1),
    Sketcher.Constraint("Vertical", 2),
    Sketcher.Constraint("Horizontal", 3),
    Sketcher.Constraint("DistanceX", 1, 2, 1, 1, 4.0),
    Sketcher.Constraint("DistanceY", 0, 1, 0, 2, 12.0),
    Sketcher.Constraint("DistanceY", -1, 1, 0, 2, 6.0),
    Sketcher.Constraint("DistanceX", -1, 1, 0, 2, 9.5),
])
sketch20.setExpression("Constraints[8]", "Params.sketch20_width")
sketch20.setExpression("Constraints[9]", "Params.sketch20_height")
pad11 = body.newObject("PartDesign::Pad", "Pad010")
pad11.Profile = sketch20
pad11.setExpression("Length", "Params.pad11_length")

sketch21 = body.newObject("Sketcher::SketchObject", "Sketch020")
sketch21.AttachmentSupport = (doc.getObject("XZ_Plane"), [""])
sketch21.MapMode = "FlatFace"
sketch21.AttachmentOffset = App.Placement(App.Vector(0, 0, -9.5), App.Rotation())
sketch21.addGeometry([
    Part.LineSegment(App.Vector(36.8, 5.5, 0), App.Vector(36.8, -5.5, 0)),
    Part.LineSegment(App.Vector(36.8, -5.5, 0), App.Vector(34.8, -5.5, 0)),
    Part.LineSegment(App.Vector(34.8, -5.5, 0), App.Vector(34.8, 5.5, 0)),
    Part.LineSegment(App.Vector(34.8, 5.5, 0), App.Vector(36.8, 5.5, 0)),
], False)
sketch21.addConstraint([
    Sketcher.Constraint("Coincident", 0, 2, 1, 1),
    Sketcher.Constraint("Coincident", 1, 2, 2, 1),
    Sketcher.Constraint("Coincident", 2, 2, 3, 1),
    Sketcher.Constraint("Coincident", 3, 2, 0, 1),
    Sketcher.Constraint("Vertical", 0),
    Sketcher.Constraint("Horizontal", 1),
    Sketcher.Constraint("Vertical", 2),
    Sketcher.Constraint("Horizontal", 3),
    Sketcher.Constraint("DistanceX", 1, 2, 1, 1, 2.0),
    Sketcher.Constraint("DistanceY", 0, 2, 0, 1, 11.0),
    Sketcher.Constraint("DistanceX", -1, 1, 0, 2, 36.8),
    Sketcher.Constraint("DistanceY", 0, 2, -1, 1, 5.5),
])
sketch21.setExpression("Constraints[8]", "Params.sketch21_width")
sketch21.setExpression("Constraints[9]", "Params.sketch21_height")
pocket9 = body.newObject("PartDesign::Pocket", "Pocket008")
pocket9.Profile = sketch21
pocket9.setExpression("Length", "Params.pocket9_length")
pocket9.Reversed = True

sketch22 = body.newObject("Sketcher::SketchObject", "Sketch021")
sketch22.AttachmentSupport = (doc.getObject("XZ_Plane"), [""])
sketch22.MapMode = "FlatFace"
sketch22.AttachmentOffset = App.Placement(App.Vector(0, 0, -6), App.Rotation())
sketch22.addGeometry([
    Part.Circle(App.Vector(35.8, 4.4, 0), App.Vector(0, 0, 1), 0.75),
    Part.Circle(App.Vector(35.8, 2.8, 0), App.Vector(0, 0, 1), 0.75),
    Part.Circle(App.Vector(35.8, 0.8, 0), App.Vector(0, 0, 1), 0.75),
    Part.Circle(App.Vector(35.8, -0.8, 0), App.Vector(0, 0, 1), 0.75),
    Part.Circle(App.Vector(35.8, -2.8, 0), App.Vector(0, 0, 1), 0.75),
    Part.Circle(App.Vector(35.8, -4.4, 0), App.Vector(0, 0, 1), 0.75),
], False)
sketch22.addConstraint([
    Sketcher.Constraint("Equal", 0, 1),
    Sketcher.Constraint("Equal", 1, 2),
    Sketcher.Constraint("Equal", 2, 3),
    Sketcher.Constraint("Equal", 3, 4),
    Sketcher.Constraint("Equal", 4, 5),
    Sketcher.Constraint("Symmetric", 2, 3, 3, 3, -1),
    Sketcher.Constraint("Symmetric", 1, 3, 4, 3, -1),
    Sketcher.Constraint("Symmetric", 0, 3, 5, 3, -1),
    Sketcher.Constraint("Vertical", 0, 3, 1, 3),
    Sketcher.Constraint("Vertical", 1, 3, 2, 3),
    Sketcher.Constraint("Diameter", 0, 1.5),
    Sketcher.Constraint("DistanceY", 2, 3, 1, 3, 2.0),
    Sketcher.Constraint("DistanceX", -1, 1, 0, 3, 35.8),
    Sketcher.Constraint("DistanceY", -1, 1, 0, 3, 4.4),
    Sketcher.Constraint("DistanceY", -1, 1, 1, 3, 2.8),
])
sketch22.setExpression("Constraints[10]", "Params.sketch22_diameter")
pad12 = body.newObject("PartDesign::Pad", "Pad011")
pad12.Profile = sketch22
pad12.setExpression("Length", "Params.pad12_length")
pad12.Reversed = True

sketch23 = body.newObject("Sketcher::SketchObject", "Sketch022")
sketch23.AttachmentSupport = (doc.getObject("YZ_Plane"), [""])
sketch23.MapMode = "FlatFace"
sketch23.AttachmentOffset = App.Placement(App.Vector(0, 0, 34.3), App.Rotation())
sketch23.addGeometry([
    Part.LineSegment(App.Vector(-10.1, -3, 0), App.Vector(-7.5, -3, 0)),
    Part.LineSegment(App.Vector(-7.5, -3, 0), App.Vector(-7.5, 3, 0)),
    Part.LineSegment(App.Vector(-7.5, 3, 0), App.Vector(-10.1, 3, 0)),
    Part.LineSegment(App.Vector(-10.1, 3, 0), App.Vector(-10.1, -3, 0)),
], False)
sketch23.addConstraint([
    Sketcher.Constraint("Coincident", 0, 2, 1, 1),
    Sketcher.Constraint("Coincident", 1, 2, 2, 1),
    Sketcher.Constraint("Coincident", 2, 2, 3, 1),
    Sketcher.Constraint("Coincident", 3, 2, 0, 1),
    Sketcher.Constraint("Horizontal", 0),
    Sketcher.Constraint("Vertical", 1),
    Sketcher.Constraint("Horizontal", 2),
    Sketcher.Constraint("Vertical", 3),
    Sketcher.Constraint("DistanceY", 1, 1, 1, 2, 6.0),
    Sketcher.Constraint("DistanceX", 0, 1, 0, 2, 2.6),
    Sketcher.Constraint("DistanceY", 0, 2, -1, 1, 3.0),
    Sketcher.Constraint("DistanceX", 0, 2, -1, 1, 7.5),
])
sketch23.setExpression("Constraints[8]", "Params.sketch23_height")
sketch23.setExpression("Constraints[9]", "Params.sketch23_width")
pad13 = body.newObject("PartDesign::Pad", "Pad012")
pad13.Profile = sketch23
pad13.setExpression("Length", "Params.pad13_length")

sketch24 = body.newObject("Sketcher::SketchObject", "Sketch023")
sketch24.AttachmentSupport = (doc.getObject("YZ_Plane"), [""])
sketch24.MapMode = "FlatFace"
sketch24.AttachmentOffset = App.Placement(App.Vector(0, 0, 40.3), App.Rotation())
sketch24.addGeometry([
    Part.LineSegment(App.Vector(-7.8, 2.7, 0), App.Vector(-9.8, 2.7, 0)),
    Part.LineSegment(App.Vector(-9.8, 2.7, 0), App.Vector(-9.8, -2.7, 0)),
    Part.LineSegment(App.Vector(-9.8, -2.7, 0), App.Vector(-7.8, -2.7, 0)),
    Part.LineSegment(App.Vector(-7.8, -2.7, 0), App.Vector(-7.8, 2.7, 0)),
], False)
sketch24.addConstraint([
    Sketcher.Constraint("Coincident", 0, 2, 1, 1),
    Sketcher.Constraint("Coincident", 1, 2, 2, 1),
    Sketcher.Constraint("Coincident", 2, 2, 3, 1),
    Sketcher.Constraint("Coincident", 3, 2, 0, 1),
    Sketcher.Constraint("Horizontal", 0),
    Sketcher.Constraint("Vertical", 1),
    Sketcher.Constraint("Horizontal", 2),
    Sketcher.Constraint("Vertical", 3),
    Sketcher.Constraint("DistanceX", 0, 2, 0, 1, 2.0),
    Sketcher.Constraint("DistanceY", 1, 2, 1, 1, 5.4),
    Sketcher.Constraint("DistanceX", 0, 2, -1, 1, 9.8),
    Sketcher.Constraint("DistanceY", -1, 1, 0, 2, 2.7),
])
sketch24.setExpression("Constraints[8]", "Params.sketch24_width")
sketch24.setExpression("Constraints[9]", "Params.sketch24_height")
pad14 = body.newObject("PartDesign::Pad", "Pad013")
pad14.Profile = sketch24
pad14.setExpression("Length", "Params.pad14_length")

doc.recompute()
